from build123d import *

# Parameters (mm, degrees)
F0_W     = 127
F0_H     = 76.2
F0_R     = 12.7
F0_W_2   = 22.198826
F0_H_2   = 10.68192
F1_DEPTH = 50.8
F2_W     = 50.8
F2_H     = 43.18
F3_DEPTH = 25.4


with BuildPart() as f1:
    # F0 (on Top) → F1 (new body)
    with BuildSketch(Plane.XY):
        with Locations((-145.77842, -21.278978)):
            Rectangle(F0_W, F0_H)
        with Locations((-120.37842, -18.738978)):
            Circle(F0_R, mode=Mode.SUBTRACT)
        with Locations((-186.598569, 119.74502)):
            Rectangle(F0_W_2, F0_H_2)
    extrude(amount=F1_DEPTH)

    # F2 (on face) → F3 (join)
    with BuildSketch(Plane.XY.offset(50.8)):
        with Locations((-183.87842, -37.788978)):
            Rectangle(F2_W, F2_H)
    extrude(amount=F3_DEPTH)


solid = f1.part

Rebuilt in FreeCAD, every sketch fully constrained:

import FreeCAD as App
import Part
import Sketcher

V = App.Vector
Q = App.Units.Quantity

doc = App.newDocument("Part")
body = doc.addObject("PartDesign::Body", "Body")
body.AllowCompound = True

# Sketch on XY plane
sketch1 = body.newObject("Sketcher::SketchObject", "Sketch")
sketch1.AttachmentSupport = (doc.getObject("XY_Plane"), [""])
sketch1.MapMode = "FlatFace"
sketch1.addGeometry([
    Part.LineSegment(V(-209, 17, 0), V(-209, -59, 0)),  # 0
    Part.LineSegment(V(-209, -59, 0), V(-82, -59, 0)),  # 1
    Part.LineSegment(V(-82, -59, 0), V(-82, 17, 0)),  # 2
    Part.LineSegment(V(-82, 17, 0), V(-209, 17, 0)),  # 3
    Part.Circle(V(-120, -19, 0), V(0, 0, 1), 13),  # 4
    Part.LineSegment(V(-198, 125, 0), V(-198, 114, 0)),  # 5
    Part.LineSegment(V(-198, 114, 0), V(-175, 114, 0)),  # 6
    Part.LineSegment(V(-175, 114, 0), V(-175, 125, 0)),  # 7
    Part.LineSegment(V(-175, 125, 0), V(-198, 125, 0)),  # 8
], False)
sketch1.addConstraint([
    Sketcher.Constraint("Coincident", 0, 2, 1, 1),
    Sketcher.Constraint("Coincident", 1, 2, 2, 1),
    Sketcher.Constraint("Coincident", 2, 2, 3, 1),
    Sketcher.Constraint("Coincident", 3, 2, 0, 1),
    Sketcher.Constraint("Coincident", 5, 2, 6, 1),
    Sketcher.Constraint("Coincident", 6, 2, 7, 1),
    Sketcher.Constraint("Coincident", 7, 2, 8, 1),
    Sketcher.Constraint("Coincident", 8, 2, 5, 1),
    Sketcher.Constraint("Vertical", 0),
    Sketcher.Constraint("Horizontal", 1),
    Sketcher.Constraint("Vertical", 2),
    Sketcher.Constraint("Horizontal", 3),
    Sketcher.Constraint("Vertical", 5),
    Sketcher.Constraint("Horizontal", 6),
    Sketcher.Constraint("Vertical", 7),
    Sketcher.Constraint("Horizontal", 8),
    Sketcher.Constraint("Diameter", 4, Q("1 in")),
    Sketcher.Constraint("DistanceX", 1, 1, 1, 2, Q("5 in")),
    Sketcher.Constraint("DistanceY", 0, 2, 0, 1, Q("3 in")),
    Sketcher.Constraint("DistanceX", 0, 2, 4, 3, Q("3.5 in")),
    Sketcher.Constraint("DistanceY", 0, 2, 4, 3, Q("1.6 in")),
    Sketcher.Constraint("DistanceY", 3, 2, 7, 2, Q("4.2623999 in")),
    Sketcher.Constraint("DistanceY", 5, 2, 5, 1, Q("10.68192 mm")),
    Sketcher.Constraint("DistanceX", 6, 1, 6, 2, Q("22.198826 mm")),
    Sketcher.Constraint("DistanceX", 4, 3, -1, 1, Q("120.37842 mm")),
    Sketcher.Constraint("DistanceY", -1, 1, 2, 2, Q("16.821022 mm")),
    Sketcher.Constraint("DistanceX", 5, 2, -1, 1, Q("197.697982 mm")),
])
pad1 = body.newObject("PartDesign::Pad", "Pad")
pad1.Profile = sketch1
pad1.Length = Q("2 in")

# Sketch on XY plane
sketch2 = body.newObject("Sketcher::SketchObject", "Sketch001")
sketch2.AttachmentSupport = (doc.getObject("XY_Plane"), [""])
sketch2.MapMode = "FlatFace"
sketch2.AttachmentOffset = App.Placement(V(0, 0, 2 * 25.4), App.Rotation())
sketch2.addGeometry([
    Part.LineSegment(V(-209, -16, 0), V(-209, -59, 0)),
    Part.LineSegment(V(-209, -59, 0), V(-158, -59, 0)),
    Part.LineSegment(V(-158, -59, 0), V(-158, -16, 0)),
    Part.LineSegment(V(-158, -16, 0), V(-209, -16, 0)),
], False)
sketch2.addConstraint([
    Sketcher.Constraint("Coincident", 0, 2, 1, 1),
    Sketcher.Constraint("Coincident", 1, 2, 2, 1),
    Sketcher.Constraint("Coincident", 2, 2, 3, 1),
    Sketcher.Constraint("Coincident", 3, 2, 0, 1),
    Sketcher.Constraint("Vertical", 0),
    Sketcher.Constraint("Horizontal", 1),
    Sketcher.Constraint("Vertical", 2),
    Sketcher.Constraint("Horizontal", 3),
    Sketcher.Constraint("DistanceX", 1, 1, 1, 2, Q("2 in")),
    Sketcher.Constraint("DistanceY", 0, 2, 0, 1, Q("1.7 in")),
    Sketcher.Constraint("DistanceX", 0, 2, -1, 1, Q("209.27842 mm")),
    Sketcher.Constraint("DistanceY", 2, 2, -1, 1, Q("16.198978 mm")),
])
pad2 = body.newObject("PartDesign::Pad", "Pad001")
pad2.Profile = sketch2
pad2.Length = Q("1 in")

doc.recompute()
